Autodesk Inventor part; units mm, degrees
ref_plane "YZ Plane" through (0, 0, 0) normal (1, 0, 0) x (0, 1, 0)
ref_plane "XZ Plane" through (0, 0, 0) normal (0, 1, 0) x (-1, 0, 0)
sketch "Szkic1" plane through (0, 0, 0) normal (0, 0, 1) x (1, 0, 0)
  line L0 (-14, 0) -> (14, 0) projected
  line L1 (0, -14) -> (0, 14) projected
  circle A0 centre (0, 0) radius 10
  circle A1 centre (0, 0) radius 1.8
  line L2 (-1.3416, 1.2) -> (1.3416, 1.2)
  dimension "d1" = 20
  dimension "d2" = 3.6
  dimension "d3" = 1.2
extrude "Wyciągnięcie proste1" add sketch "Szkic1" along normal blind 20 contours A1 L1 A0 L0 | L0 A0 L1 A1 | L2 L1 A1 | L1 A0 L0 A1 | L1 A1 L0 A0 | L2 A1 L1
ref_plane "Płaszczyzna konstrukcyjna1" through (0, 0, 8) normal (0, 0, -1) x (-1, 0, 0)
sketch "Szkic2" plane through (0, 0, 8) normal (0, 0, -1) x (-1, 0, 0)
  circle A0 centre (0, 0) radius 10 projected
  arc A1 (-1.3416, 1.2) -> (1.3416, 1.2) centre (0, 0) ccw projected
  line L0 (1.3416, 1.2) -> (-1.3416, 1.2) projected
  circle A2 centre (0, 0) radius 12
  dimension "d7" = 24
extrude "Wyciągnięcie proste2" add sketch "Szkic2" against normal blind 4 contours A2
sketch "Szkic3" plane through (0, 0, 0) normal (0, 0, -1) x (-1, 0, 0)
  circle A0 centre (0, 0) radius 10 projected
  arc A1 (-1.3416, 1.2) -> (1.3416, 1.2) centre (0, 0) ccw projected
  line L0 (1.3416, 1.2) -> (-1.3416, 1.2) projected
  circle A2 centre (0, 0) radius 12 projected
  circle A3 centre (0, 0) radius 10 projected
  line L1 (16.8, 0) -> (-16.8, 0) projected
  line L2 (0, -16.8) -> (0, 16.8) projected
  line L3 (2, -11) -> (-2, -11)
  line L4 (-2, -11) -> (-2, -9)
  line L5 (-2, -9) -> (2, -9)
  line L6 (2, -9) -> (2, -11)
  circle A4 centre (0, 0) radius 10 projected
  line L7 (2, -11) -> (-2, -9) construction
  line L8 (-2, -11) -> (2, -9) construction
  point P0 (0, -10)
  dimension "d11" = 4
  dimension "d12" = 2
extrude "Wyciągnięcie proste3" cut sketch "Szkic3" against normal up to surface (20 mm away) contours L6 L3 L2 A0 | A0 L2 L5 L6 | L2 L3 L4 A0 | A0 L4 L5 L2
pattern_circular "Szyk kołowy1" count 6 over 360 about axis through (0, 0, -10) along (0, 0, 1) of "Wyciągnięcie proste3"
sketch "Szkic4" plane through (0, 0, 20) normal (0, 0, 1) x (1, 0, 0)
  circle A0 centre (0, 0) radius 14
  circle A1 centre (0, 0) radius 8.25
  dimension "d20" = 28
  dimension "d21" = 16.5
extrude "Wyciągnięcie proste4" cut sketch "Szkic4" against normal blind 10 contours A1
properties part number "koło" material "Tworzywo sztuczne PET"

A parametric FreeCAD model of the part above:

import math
import FreeCAD as App
import Part
import Sketcher

V = App.Vector
Q = App.Units.Quantity


def add_polygon(sketch, points):
    """Adds a closed chain of lines whose ends are joined by coincident constraints."""
    first, n = sketch.GeometryCount, len(points)
    for a, b in zip(points, points[1:] + points[:1]):
        sketch.addGeometry(Part.LineSegment(App.Vector(*a, 0), App.Vector(*b, 0)), False)
    for i in range(n):
        sketch.addConstraint(Sketcher.Constraint("Coincident", first + i, 2, first + (i + 1) % n, 1))

doc = App.newDocument("Part")
params = doc.addObject("Spreadsheet::Sheet", "Params")
for row, (alias, value) in enumerate([
    ("sketch1_diameter", "20 mm"),
    ("sketch1_radius", "1.8 mm"),
    ("pad1_length", "20 mm"),
    ("sketch2_diameter", "24 mm"),
    ("sketch2_diameter2", "20 mm"),
    ("pad2_length", "4 mm"),
    ("sketch3_width", "4 mm"),
    ("sketch3_height", "2 mm"),
    ("pocket1_length", "20 mm"),
    ("sketch4_diameter", "16.5 mm"),
    ("pocket2_length", "10 mm"),
], start=1):
    params.set(f"A{row}", alias)
    params.set(f"B{row}", "=" + value)
    params.setAlias(f"B{row}", alias)

body = doc.addObject("PartDesign::Body", "Body")

# Sketch on XY plane
sketch1 = body.newObject("Sketcher::SketchObject", "Sketch")
sketch1.AttachmentSupport = (doc.getObject("XY_Plane"), [""])
sketch1.MapMode = "FlatFace"
sketch1.addGeometry(Part.Circle(V(0, 0, 0), V(0, 0, 1), 10), False)
sketch1.addGeometry(Part.ArcOfCircle(Part.Circle(V(0, 0, 0), V(0, 0, 1), 1.8), math.radians(138), math.radians(402)), False)
sketch1.addGeometry(Part.LineSegment(V(1.3, 1.2, 0), V(-1.3, 1.2, 0)), False)
sketch1.addConstraint(Sketcher.Constraint("Coincident", 1, 1, 2, 2))
sketch1.addConstraint(Sketcher.Constraint("Coincident", 2, 1, 1, 2))
sketch1.addConstraint(Sketcher.Constraint("Horizontal", 2))
sketch1.addConstraint(Sketcher.Constraint("Coincident", 0, 3, -1, 1))
sketch1.addConstraint(Sketcher.Constraint("Coincident", 1, 3, -1, 1))
sketch1.addConstraint(Sketcher.Constraint("Diameter", 0, Q("20 mm")))
sketch1.addConstraint(Sketcher.Constraint("Radius", 1, Q("1.8 mm")))
sketch1.addConstraint(Sketcher.Constraint("DistanceY", -1, 1, 1, 1, Q("1.2 mm")))
sketch1.setExpression("Constraints[5]", "Params.sketch1_diameter")
sketch1.setExpression("Constraints[6]", "Params.sketch1_radius")
pad1 = body.newObject("PartDesign::Pad", "Pad")
pad1.Profile = sketch1
pad1.setExpression("Length", "Params.pad1_length")

# Sketch on XY plane
sketch2 = body.newObject("Sketcher::SketchObject", "Sketch001")
sketch2.AttachmentSupport = (doc.getObject("XY_Plane"), [""])
sketch2.MapMode = "FlatFace"
sketch2.AttachmentOffset = App.Placement(V(0, 0, 8), App.Rotation())
sketch2.addGeometry(Part.Circle(V(0, 0, 0), V(0, 0, 1), 12), False)
sketch2.addGeometry(Part.Circle(V(0, 0, 0), V(0, 0, 1), 10), False)
sketch2.addConstraint(Sketcher.Constraint("Coincident", 0, 3, -1, 1))
sketch2.addConstraint(Sketcher.Constraint("Coincident", 1, 3, -1, 1))
sketch2.addConstraint(Sketcher.Constraint("Diameter", 0, Q("24 mm")))
sketch2.addConstraint(Sketcher.Constraint("Diameter", 1, Q("20 mm")))
sketch2.setExpression("Constraints[2]", "Params.sketch2_diameter")
sketch2.setExpression("Constraints[3]", "Params.sketch2_diameter2")
pad2 = body.newObject("PartDesign::Pad", "Pad001")
pad2.Profile = sketch2
pad2.setExpression("Length", "Params.pad2_length")

# Sketch on XY plane
sketch3 = body.newObject("Sketcher::SketchObject", "Sketch002")
sketch3.AttachmentSupport = (doc.getObject("XY_Plane"), [""])
sketch3.MapMode = "FlatFace"
add_polygon(sketch3, [(-2, -11), (-2, -9), (2, -9), (2, -11)])  # lines 0-3
sketch3.addConstraint(Sketcher.Constraint("Vertical", 0))
sketch3.addConstraint(Sketcher.Constraint("Horizontal", 1))
sketch3.addConstraint(Sketcher.Constraint("Vertical", 2))
sketch3.addConstraint(Sketcher.Constraint("Horizontal", 3))
sketch3.addConstraint(Sketcher.Constraint("DistanceX", 1, 1, 1, 2, Q("4 mm")))
sketch3.addConstraint(Sketcher.Constraint("DistanceY", 0, 1, 0, 2, Q("2 mm")))
sketch3.addConstraint(Sketcher.Constraint("DistanceX", 0, 2, -1, 1, Q("2 mm")))
sketch3.addConstraint(Sketcher.Constraint("DistanceY", 0, 2, -1, 1, Q("9 mm")))
sketch3.setExpression("Constraints[8]", "Params.sketch3_width")
sketch3.setExpression("Constraints[9]", "Params.sketch3_height")
pocket1 = body.newObject("PartDesign::Pocket", "Pocket")
pocket1.Profile = sketch3
pocket1.setExpression("Length", "Params.pocket1_length")
pocket1.Reversed = True
doc.recompute()

polarpattern = body.newObject("PartDesign::PolarPattern", "PolarPattern")
polarpattern.Originals = [pocket1]
polarpattern.Axis = (doc.getObject("Z_Axis"), [""])
polarpattern.Angle = 360
polarpattern.Occurrences = 6
body.Tip = polarpattern

# Sketch on XY plane
sketch4 = body.newObject("Sketcher::SketchObject", "Sketch003")
sketch4.AttachmentSupport = (doc.getObject("XY_Plane"), [""])
sketch4.MapMode = "FlatFace"
sketch4.AttachmentOffset = App.Placement(V(0, 0, 20), App.Rotation())
sketch4.addGeometry(Part.Circle(V(0, 0, 0), V(0, 0, 1), 8), False)
sketch4.addConstraint(Sketcher.Constraint("Coincident", 0, 3, -1, 1))
sketch4.addConstraint(Sketcher.Constraint("Diameter", 0, Q("16.5 mm")))
sketch4.setExpression("Constraints[1]", "Params.sketch4_diameter")
pocket2 = body.newObject("PartDesign::Pocket", "Pocket001")
pocket2.Profile = sketch4
pocket2.setExpression("Length", "Params.pocket2_length")

doc.recompute()
